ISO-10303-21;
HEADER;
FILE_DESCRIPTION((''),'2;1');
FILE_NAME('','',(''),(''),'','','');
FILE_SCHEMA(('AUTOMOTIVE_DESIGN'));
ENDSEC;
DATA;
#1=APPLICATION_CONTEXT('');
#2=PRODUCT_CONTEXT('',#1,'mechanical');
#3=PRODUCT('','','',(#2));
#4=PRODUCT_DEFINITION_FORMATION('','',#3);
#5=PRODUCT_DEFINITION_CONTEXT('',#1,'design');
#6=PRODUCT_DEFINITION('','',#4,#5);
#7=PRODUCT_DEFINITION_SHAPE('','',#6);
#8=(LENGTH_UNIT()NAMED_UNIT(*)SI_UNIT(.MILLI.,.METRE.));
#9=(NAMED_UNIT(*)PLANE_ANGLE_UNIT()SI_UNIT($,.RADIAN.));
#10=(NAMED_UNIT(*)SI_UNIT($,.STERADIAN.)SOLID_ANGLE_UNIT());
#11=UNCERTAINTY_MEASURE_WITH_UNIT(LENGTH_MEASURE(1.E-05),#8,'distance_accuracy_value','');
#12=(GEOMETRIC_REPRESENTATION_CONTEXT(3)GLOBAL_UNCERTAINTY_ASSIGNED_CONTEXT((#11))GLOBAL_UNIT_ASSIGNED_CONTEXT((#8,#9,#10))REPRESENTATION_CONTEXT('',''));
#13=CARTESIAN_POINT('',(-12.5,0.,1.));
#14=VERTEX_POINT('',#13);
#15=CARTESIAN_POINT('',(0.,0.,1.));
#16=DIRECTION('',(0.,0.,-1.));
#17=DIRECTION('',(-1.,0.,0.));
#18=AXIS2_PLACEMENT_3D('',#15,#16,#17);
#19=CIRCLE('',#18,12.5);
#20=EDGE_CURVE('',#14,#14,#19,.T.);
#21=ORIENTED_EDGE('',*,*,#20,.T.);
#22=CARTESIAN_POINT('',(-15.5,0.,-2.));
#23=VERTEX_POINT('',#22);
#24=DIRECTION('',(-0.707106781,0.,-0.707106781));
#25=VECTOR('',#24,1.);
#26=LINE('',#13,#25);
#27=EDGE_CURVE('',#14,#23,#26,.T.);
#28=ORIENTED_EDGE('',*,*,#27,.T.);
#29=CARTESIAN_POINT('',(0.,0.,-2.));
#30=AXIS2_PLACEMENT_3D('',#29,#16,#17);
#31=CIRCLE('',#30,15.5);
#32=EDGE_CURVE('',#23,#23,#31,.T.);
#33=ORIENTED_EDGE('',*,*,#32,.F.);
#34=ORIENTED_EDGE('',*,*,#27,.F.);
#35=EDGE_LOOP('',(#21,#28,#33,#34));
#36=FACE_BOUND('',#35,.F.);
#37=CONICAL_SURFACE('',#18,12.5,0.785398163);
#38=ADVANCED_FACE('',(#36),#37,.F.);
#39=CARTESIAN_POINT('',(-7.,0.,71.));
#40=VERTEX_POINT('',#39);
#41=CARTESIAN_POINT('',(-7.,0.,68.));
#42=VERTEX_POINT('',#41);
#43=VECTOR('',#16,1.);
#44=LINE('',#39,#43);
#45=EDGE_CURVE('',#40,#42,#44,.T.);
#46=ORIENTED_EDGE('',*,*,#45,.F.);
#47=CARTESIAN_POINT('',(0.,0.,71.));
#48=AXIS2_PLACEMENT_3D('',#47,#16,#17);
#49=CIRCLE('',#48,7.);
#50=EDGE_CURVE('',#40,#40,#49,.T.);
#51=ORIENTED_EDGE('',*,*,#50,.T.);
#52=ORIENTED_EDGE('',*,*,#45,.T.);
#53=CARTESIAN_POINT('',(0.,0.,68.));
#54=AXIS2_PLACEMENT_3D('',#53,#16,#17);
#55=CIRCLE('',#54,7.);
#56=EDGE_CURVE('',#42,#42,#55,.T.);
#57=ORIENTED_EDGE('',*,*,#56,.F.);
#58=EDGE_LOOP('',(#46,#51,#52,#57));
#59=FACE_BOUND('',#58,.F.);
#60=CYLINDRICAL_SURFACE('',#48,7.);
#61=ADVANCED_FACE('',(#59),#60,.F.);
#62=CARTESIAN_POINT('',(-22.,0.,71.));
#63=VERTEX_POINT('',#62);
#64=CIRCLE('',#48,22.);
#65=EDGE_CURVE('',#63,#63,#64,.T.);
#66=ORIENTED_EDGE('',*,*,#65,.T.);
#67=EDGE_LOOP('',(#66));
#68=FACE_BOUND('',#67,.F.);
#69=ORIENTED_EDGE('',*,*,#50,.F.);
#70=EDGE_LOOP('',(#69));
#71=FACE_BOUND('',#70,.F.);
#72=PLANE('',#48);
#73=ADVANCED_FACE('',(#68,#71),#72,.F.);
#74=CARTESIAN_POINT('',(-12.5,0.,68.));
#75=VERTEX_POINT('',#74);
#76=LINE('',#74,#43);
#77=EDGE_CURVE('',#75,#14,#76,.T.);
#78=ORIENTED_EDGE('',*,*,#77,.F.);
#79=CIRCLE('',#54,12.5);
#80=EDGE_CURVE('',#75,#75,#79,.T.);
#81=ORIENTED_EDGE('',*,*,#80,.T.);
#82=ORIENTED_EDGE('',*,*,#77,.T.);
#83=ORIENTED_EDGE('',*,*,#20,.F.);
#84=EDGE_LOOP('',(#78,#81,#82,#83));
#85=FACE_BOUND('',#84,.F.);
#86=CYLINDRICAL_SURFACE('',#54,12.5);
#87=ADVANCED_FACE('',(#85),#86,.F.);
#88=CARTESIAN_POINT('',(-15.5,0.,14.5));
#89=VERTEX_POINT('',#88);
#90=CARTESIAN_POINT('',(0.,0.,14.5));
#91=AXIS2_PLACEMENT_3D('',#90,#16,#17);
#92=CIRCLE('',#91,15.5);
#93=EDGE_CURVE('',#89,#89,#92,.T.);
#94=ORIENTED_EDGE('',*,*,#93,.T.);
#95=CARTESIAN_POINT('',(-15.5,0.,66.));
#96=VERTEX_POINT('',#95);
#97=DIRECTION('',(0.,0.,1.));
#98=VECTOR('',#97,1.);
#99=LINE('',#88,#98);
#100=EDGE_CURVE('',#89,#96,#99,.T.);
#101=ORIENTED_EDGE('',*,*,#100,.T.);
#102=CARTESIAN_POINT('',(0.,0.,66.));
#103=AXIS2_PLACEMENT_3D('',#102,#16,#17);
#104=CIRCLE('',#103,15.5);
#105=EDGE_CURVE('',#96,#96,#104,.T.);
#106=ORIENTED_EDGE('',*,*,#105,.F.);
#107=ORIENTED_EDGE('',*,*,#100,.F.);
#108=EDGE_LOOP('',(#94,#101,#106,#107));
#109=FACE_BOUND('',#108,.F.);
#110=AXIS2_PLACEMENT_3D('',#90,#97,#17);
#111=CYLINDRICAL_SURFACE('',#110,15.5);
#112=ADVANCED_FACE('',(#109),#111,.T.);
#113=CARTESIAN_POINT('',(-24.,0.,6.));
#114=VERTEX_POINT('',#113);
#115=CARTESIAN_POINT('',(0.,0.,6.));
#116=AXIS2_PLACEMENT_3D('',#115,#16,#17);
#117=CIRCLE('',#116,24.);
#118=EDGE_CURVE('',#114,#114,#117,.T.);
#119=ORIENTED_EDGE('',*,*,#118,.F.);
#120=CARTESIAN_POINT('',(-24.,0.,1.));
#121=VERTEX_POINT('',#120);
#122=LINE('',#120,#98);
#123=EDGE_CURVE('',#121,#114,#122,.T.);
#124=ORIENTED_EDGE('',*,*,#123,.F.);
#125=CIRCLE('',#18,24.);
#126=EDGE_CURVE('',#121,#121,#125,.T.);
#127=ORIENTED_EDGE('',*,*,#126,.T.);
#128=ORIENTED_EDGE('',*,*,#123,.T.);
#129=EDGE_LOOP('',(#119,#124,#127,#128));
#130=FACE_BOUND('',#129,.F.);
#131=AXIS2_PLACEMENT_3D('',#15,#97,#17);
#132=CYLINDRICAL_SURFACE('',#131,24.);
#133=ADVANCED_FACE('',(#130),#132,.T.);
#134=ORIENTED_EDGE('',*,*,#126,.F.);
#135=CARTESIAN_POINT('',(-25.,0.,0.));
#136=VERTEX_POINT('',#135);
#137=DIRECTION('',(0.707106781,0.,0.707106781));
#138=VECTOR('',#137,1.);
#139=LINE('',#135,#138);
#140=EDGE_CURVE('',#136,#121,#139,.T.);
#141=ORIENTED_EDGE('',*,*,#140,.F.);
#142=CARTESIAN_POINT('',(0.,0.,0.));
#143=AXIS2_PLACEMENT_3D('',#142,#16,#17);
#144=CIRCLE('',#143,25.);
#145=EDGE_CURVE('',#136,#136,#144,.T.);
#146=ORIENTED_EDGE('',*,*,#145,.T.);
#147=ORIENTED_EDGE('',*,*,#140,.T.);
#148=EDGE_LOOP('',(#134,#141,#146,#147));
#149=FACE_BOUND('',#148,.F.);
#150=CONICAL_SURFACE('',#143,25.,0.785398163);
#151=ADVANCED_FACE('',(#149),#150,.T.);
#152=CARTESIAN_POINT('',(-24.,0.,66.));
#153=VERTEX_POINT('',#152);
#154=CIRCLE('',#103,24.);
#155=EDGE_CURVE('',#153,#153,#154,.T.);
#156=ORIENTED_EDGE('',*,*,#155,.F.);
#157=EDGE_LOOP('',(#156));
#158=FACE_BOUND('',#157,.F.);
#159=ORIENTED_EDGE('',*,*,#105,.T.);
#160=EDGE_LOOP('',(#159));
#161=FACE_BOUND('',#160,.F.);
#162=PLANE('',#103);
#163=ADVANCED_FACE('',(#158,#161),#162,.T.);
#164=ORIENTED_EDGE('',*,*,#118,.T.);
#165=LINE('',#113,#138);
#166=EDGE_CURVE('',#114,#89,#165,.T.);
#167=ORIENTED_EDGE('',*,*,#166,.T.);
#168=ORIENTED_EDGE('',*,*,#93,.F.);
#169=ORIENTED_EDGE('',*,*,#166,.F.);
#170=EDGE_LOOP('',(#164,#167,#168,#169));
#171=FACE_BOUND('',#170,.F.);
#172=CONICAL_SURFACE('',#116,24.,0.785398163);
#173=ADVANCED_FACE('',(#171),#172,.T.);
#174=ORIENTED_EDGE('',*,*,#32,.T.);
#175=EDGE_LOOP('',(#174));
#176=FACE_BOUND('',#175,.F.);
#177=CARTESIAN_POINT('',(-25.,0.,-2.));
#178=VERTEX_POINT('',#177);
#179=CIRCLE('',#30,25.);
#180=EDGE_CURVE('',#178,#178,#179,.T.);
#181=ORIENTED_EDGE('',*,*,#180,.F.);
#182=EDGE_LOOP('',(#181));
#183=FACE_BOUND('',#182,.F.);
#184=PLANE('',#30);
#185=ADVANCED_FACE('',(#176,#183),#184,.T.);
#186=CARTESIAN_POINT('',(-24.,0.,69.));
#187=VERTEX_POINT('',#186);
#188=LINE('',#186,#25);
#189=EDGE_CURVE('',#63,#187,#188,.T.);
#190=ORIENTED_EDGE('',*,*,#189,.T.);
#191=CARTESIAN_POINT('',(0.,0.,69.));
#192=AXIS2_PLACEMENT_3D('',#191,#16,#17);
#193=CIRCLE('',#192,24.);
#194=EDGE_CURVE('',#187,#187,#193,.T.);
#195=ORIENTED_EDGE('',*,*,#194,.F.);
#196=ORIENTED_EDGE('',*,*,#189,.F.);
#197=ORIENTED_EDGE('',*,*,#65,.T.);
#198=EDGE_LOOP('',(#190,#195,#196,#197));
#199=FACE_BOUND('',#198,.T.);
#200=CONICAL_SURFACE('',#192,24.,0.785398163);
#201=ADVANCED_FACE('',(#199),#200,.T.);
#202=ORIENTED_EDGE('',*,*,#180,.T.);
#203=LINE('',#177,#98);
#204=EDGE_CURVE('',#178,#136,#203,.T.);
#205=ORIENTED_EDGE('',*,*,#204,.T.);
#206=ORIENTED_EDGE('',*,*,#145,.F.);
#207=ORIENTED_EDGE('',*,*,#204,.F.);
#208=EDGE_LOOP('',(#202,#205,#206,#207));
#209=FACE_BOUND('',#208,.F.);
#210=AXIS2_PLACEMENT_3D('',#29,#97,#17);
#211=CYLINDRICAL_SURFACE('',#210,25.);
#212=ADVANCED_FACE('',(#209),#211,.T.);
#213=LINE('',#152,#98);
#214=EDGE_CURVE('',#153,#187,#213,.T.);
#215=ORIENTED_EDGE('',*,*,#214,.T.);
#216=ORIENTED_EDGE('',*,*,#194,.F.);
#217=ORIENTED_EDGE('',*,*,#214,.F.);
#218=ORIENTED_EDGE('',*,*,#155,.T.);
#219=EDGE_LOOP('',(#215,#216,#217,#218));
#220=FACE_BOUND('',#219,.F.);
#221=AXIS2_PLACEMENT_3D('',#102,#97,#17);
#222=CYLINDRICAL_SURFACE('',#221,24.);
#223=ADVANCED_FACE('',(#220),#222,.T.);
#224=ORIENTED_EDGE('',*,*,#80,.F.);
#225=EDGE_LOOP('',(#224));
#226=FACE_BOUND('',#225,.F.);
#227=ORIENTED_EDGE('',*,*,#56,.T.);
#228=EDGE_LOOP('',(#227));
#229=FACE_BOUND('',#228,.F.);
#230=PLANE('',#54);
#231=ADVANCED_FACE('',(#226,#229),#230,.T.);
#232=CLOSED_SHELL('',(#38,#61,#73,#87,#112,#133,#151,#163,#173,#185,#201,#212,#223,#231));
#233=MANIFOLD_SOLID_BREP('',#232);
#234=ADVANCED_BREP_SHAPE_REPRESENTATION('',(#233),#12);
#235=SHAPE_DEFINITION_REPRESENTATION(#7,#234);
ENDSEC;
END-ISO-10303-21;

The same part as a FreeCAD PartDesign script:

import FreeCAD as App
import Part
import Sketcher
from FreeCAD import Vector
Q = App.Units.Quantity


def edges_at(feature, points):
    """Names of the edges that pass closest to the given points."""
    edges = feature.Shape.Edges
    near = lambda p: min(range(len(edges)), key=lambda i: edges[i].distToShape(Part.Vertex(*p))[0])
    return sorted({f"Edge{near(p) + 1}" for p in points})

doc = App.newDocument("Part")
params = doc.addObject("Spreadsheet::Sheet", "Params")
for row, (alias, value) in enumerate([
    ("sketch1_width", "17 mm"),
    ("sketch1_height", "5 mm"),
    ("sketch1_height2", "2 mm"),
    ("sketch1_height3", "70 mm"),
    ("sketch1_height4", "3 mm"),
    ("revolution_angle", "360 deg"),
    ("chamfer_size", "3 mm"),
    ("chamfer2_size", "2 mm"),
], start=1):
    params.set(f"A{row}", alias)
    params.set(f"B{row}", "=" + value)
    params.setAlias(f"B{row}", alias)

body = doc.addObject("PartDesign::Body", "Body")

# Sketch on XZ plane
sketch1 = doc.addObject("Sketcher::SketchObject", "Sketch")
body.addObject(sketch1)
sketch1.AttachmentSupport = (doc.XZ_Plane, [""])
sketch1.MapMode = "FlatFace"
sketch1.addGeometry([
    Part.LineSegment(Vector(7, 0, 0), Vector(24, 0, 0)),  # 0
    Part.LineSegment(Vector(24, 0, 0), Vector(24, 5, 0)),  # 1
    Part.LineSegment(Vector(24, 5, 0), Vector(15.5, 5, 0)),  # 2
    Part.LineSegment(Vector(15.5, 5, 0), Vector(15.5, 56.5, 0)),  # 3
    Part.LineSegment(Vector(15.5, 56.5, 0), Vector(24, 65, 0)),  # 4
    Part.LineSegment(Vector(24, 65, 0), Vector(24, 70, 0)),  # 5
    Part.LineSegment(Vector(24, 70, 0), Vector(25, 71, 0)),  # 6
    Part.LineSegment(Vector(25, 71, 0), Vector(25, 73, 0)),  # 7
    Part.LineSegment(Vector(25, 73, 0), Vector(12.5, 73, 0)),  # 8
    Part.LineSegment(Vector(12.5, 73, 0), Vector(12.5, 3, 0)),  # 9
    Part.LineSegment(Vector(12.5, 3, 0), Vector(7, 3, 0)),  # 10
    Part.LineSegment(Vector(7, 3, 0), Vector(7, 0, 0)),  # 11
], False)
sketch1.addConstraint([
    Sketcher.Constraint("Coincident", 0, 2, 1, 1),
    Sketcher.Constraint("Coincident", 1, 2, 2, 1),
    Sketcher.Constraint("Coincident", 2, 2, 3, 1),
    Sketcher.Constraint("Coincident", 3, 2, 4, 1),
    Sketcher.Constraint("Coincident", 4, 2, 5, 1),
    Sketcher.Constraint("Coincident", 5, 2, 6, 1),
    Sketcher.Constraint("Coincident", 6, 2, 7, 1),
    Sketcher.Constraint("Coincident", 7, 2, 8, 1),
    Sketcher.Constraint("Coincident", 8, 2, 9, 1),
    Sketcher.Constraint("Coincident", 9, 2, 10, 1),
    Sketcher.Constraint("Coincident", 10, 2, 11, 1),
    Sketcher.Constraint("Coincident", 11, 2, 0, 1),
    Sketcher.Constraint("Horizontal", 0),
    Sketcher.Constraint("Vertical", 1),
    Sketcher.Constraint("Horizontal", 2),
    Sketcher.Constraint("Vertical", 3),
    Sketcher.Constraint("Vertical", 5),
    Sketcher.Constraint("Vertical", 7),
    Sketcher.Constraint("Horizontal", 8),
    Sketcher.Constraint("Vertical", 9),
    Sketcher.Constraint("Horizontal", 10),
    Sketcher.Constraint("Vertical", 11),
    Sketcher.Constraint("PointOnObject", 0, 2, -1),
    Sketcher.Constraint("Parallel", 4, 6),
    Sketcher.Constraint("Vertical", 1, 2, 4, 2),
    Sketcher.Constraint("Equal", 1, 5),
    Sketcher.Constraint("DistanceX", 0, 1, 0, 2, Q("17 mm")),
    Sketcher.Constraint("DistanceY", 1, 1, 1, 2, Q("5 mm")),
    Sketcher.Constraint("DistanceY", 7, 1, 7, 2, Q("2 mm")),
    Sketcher.Constraint("DistanceY", 9, 2, 9, 1, Q("70 mm")),
    Sketcher.Constraint("DistanceY", 11, 2, 11, 1, Q("3 mm")),
    Sketcher.Constraint("Angle", 4, Q("45 deg")),
    Sketcher.Constraint("DistanceX", 2, 2, 2, 1, Q("8.5 mm")),
    Sketcher.Constraint("DistanceX", 8, 2, 8, 1, Q("12.5 mm")),
    Sketcher.Constraint("DistanceX", 10, 2, 10, 1, Q("5.5 mm")),
    Sketcher.Constraint("DistanceX", -1, 1, 0, 2, Q("24 mm")),
])
sketch1.setExpression("Constraints[26]", "Params.sketch1_width")
sketch1.setExpression("Constraints[27]", "Params.sketch1_height")
sketch1.setExpression("Constraints[28]", "Params.sketch1_height2")
sketch1.setExpression("Constraints[29]", "Params.sketch1_height3")
sketch1.setExpression("Constraints[30]", "Params.sketch1_height4")
revolution = doc.addObject("PartDesign::Revolution", "Revolution")
body.addObject(revolution)
revolution.Profile = sketch1
revolution.ReferenceAxis = (sketch1, ["V_Axis"])
revolution.setExpression("Angle", "Params.revolution_angle")
doc.recompute()

chamfer = doc.addObject("PartDesign::Chamfer", "Chamfer")
body.addObject(chamfer)
chamfer.Base = (revolution, edges_at(revolution, [(-12.5, 0, 73)]))
chamfer.setExpression("Size", "Params.chamfer_size")
doc.recompute()

chamfer2 = doc.addObject("PartDesign::Chamfer", "Chamfer001")
body.addObject(chamfer2)
chamfer2.Base = (chamfer, edges_at(chamfer, [(-24, 0, 0)]))
chamfer2.setExpression("Size", "Params.chamfer2_size")
body2 = doc.addObject("PartDesign::Body", "Body001")
doc.recompute()

body.Placement = App.Placement(Vector(0, 0, 71), App.Rotation(Vector(0, 1, 0), 180))
boolean = doc.addObject("PartDesign::Boolean", "Boolean")
body2.addObject(boolean)
boolean.Type = "Fuse"
boolean.addObjects([body])

doc.recompute()
